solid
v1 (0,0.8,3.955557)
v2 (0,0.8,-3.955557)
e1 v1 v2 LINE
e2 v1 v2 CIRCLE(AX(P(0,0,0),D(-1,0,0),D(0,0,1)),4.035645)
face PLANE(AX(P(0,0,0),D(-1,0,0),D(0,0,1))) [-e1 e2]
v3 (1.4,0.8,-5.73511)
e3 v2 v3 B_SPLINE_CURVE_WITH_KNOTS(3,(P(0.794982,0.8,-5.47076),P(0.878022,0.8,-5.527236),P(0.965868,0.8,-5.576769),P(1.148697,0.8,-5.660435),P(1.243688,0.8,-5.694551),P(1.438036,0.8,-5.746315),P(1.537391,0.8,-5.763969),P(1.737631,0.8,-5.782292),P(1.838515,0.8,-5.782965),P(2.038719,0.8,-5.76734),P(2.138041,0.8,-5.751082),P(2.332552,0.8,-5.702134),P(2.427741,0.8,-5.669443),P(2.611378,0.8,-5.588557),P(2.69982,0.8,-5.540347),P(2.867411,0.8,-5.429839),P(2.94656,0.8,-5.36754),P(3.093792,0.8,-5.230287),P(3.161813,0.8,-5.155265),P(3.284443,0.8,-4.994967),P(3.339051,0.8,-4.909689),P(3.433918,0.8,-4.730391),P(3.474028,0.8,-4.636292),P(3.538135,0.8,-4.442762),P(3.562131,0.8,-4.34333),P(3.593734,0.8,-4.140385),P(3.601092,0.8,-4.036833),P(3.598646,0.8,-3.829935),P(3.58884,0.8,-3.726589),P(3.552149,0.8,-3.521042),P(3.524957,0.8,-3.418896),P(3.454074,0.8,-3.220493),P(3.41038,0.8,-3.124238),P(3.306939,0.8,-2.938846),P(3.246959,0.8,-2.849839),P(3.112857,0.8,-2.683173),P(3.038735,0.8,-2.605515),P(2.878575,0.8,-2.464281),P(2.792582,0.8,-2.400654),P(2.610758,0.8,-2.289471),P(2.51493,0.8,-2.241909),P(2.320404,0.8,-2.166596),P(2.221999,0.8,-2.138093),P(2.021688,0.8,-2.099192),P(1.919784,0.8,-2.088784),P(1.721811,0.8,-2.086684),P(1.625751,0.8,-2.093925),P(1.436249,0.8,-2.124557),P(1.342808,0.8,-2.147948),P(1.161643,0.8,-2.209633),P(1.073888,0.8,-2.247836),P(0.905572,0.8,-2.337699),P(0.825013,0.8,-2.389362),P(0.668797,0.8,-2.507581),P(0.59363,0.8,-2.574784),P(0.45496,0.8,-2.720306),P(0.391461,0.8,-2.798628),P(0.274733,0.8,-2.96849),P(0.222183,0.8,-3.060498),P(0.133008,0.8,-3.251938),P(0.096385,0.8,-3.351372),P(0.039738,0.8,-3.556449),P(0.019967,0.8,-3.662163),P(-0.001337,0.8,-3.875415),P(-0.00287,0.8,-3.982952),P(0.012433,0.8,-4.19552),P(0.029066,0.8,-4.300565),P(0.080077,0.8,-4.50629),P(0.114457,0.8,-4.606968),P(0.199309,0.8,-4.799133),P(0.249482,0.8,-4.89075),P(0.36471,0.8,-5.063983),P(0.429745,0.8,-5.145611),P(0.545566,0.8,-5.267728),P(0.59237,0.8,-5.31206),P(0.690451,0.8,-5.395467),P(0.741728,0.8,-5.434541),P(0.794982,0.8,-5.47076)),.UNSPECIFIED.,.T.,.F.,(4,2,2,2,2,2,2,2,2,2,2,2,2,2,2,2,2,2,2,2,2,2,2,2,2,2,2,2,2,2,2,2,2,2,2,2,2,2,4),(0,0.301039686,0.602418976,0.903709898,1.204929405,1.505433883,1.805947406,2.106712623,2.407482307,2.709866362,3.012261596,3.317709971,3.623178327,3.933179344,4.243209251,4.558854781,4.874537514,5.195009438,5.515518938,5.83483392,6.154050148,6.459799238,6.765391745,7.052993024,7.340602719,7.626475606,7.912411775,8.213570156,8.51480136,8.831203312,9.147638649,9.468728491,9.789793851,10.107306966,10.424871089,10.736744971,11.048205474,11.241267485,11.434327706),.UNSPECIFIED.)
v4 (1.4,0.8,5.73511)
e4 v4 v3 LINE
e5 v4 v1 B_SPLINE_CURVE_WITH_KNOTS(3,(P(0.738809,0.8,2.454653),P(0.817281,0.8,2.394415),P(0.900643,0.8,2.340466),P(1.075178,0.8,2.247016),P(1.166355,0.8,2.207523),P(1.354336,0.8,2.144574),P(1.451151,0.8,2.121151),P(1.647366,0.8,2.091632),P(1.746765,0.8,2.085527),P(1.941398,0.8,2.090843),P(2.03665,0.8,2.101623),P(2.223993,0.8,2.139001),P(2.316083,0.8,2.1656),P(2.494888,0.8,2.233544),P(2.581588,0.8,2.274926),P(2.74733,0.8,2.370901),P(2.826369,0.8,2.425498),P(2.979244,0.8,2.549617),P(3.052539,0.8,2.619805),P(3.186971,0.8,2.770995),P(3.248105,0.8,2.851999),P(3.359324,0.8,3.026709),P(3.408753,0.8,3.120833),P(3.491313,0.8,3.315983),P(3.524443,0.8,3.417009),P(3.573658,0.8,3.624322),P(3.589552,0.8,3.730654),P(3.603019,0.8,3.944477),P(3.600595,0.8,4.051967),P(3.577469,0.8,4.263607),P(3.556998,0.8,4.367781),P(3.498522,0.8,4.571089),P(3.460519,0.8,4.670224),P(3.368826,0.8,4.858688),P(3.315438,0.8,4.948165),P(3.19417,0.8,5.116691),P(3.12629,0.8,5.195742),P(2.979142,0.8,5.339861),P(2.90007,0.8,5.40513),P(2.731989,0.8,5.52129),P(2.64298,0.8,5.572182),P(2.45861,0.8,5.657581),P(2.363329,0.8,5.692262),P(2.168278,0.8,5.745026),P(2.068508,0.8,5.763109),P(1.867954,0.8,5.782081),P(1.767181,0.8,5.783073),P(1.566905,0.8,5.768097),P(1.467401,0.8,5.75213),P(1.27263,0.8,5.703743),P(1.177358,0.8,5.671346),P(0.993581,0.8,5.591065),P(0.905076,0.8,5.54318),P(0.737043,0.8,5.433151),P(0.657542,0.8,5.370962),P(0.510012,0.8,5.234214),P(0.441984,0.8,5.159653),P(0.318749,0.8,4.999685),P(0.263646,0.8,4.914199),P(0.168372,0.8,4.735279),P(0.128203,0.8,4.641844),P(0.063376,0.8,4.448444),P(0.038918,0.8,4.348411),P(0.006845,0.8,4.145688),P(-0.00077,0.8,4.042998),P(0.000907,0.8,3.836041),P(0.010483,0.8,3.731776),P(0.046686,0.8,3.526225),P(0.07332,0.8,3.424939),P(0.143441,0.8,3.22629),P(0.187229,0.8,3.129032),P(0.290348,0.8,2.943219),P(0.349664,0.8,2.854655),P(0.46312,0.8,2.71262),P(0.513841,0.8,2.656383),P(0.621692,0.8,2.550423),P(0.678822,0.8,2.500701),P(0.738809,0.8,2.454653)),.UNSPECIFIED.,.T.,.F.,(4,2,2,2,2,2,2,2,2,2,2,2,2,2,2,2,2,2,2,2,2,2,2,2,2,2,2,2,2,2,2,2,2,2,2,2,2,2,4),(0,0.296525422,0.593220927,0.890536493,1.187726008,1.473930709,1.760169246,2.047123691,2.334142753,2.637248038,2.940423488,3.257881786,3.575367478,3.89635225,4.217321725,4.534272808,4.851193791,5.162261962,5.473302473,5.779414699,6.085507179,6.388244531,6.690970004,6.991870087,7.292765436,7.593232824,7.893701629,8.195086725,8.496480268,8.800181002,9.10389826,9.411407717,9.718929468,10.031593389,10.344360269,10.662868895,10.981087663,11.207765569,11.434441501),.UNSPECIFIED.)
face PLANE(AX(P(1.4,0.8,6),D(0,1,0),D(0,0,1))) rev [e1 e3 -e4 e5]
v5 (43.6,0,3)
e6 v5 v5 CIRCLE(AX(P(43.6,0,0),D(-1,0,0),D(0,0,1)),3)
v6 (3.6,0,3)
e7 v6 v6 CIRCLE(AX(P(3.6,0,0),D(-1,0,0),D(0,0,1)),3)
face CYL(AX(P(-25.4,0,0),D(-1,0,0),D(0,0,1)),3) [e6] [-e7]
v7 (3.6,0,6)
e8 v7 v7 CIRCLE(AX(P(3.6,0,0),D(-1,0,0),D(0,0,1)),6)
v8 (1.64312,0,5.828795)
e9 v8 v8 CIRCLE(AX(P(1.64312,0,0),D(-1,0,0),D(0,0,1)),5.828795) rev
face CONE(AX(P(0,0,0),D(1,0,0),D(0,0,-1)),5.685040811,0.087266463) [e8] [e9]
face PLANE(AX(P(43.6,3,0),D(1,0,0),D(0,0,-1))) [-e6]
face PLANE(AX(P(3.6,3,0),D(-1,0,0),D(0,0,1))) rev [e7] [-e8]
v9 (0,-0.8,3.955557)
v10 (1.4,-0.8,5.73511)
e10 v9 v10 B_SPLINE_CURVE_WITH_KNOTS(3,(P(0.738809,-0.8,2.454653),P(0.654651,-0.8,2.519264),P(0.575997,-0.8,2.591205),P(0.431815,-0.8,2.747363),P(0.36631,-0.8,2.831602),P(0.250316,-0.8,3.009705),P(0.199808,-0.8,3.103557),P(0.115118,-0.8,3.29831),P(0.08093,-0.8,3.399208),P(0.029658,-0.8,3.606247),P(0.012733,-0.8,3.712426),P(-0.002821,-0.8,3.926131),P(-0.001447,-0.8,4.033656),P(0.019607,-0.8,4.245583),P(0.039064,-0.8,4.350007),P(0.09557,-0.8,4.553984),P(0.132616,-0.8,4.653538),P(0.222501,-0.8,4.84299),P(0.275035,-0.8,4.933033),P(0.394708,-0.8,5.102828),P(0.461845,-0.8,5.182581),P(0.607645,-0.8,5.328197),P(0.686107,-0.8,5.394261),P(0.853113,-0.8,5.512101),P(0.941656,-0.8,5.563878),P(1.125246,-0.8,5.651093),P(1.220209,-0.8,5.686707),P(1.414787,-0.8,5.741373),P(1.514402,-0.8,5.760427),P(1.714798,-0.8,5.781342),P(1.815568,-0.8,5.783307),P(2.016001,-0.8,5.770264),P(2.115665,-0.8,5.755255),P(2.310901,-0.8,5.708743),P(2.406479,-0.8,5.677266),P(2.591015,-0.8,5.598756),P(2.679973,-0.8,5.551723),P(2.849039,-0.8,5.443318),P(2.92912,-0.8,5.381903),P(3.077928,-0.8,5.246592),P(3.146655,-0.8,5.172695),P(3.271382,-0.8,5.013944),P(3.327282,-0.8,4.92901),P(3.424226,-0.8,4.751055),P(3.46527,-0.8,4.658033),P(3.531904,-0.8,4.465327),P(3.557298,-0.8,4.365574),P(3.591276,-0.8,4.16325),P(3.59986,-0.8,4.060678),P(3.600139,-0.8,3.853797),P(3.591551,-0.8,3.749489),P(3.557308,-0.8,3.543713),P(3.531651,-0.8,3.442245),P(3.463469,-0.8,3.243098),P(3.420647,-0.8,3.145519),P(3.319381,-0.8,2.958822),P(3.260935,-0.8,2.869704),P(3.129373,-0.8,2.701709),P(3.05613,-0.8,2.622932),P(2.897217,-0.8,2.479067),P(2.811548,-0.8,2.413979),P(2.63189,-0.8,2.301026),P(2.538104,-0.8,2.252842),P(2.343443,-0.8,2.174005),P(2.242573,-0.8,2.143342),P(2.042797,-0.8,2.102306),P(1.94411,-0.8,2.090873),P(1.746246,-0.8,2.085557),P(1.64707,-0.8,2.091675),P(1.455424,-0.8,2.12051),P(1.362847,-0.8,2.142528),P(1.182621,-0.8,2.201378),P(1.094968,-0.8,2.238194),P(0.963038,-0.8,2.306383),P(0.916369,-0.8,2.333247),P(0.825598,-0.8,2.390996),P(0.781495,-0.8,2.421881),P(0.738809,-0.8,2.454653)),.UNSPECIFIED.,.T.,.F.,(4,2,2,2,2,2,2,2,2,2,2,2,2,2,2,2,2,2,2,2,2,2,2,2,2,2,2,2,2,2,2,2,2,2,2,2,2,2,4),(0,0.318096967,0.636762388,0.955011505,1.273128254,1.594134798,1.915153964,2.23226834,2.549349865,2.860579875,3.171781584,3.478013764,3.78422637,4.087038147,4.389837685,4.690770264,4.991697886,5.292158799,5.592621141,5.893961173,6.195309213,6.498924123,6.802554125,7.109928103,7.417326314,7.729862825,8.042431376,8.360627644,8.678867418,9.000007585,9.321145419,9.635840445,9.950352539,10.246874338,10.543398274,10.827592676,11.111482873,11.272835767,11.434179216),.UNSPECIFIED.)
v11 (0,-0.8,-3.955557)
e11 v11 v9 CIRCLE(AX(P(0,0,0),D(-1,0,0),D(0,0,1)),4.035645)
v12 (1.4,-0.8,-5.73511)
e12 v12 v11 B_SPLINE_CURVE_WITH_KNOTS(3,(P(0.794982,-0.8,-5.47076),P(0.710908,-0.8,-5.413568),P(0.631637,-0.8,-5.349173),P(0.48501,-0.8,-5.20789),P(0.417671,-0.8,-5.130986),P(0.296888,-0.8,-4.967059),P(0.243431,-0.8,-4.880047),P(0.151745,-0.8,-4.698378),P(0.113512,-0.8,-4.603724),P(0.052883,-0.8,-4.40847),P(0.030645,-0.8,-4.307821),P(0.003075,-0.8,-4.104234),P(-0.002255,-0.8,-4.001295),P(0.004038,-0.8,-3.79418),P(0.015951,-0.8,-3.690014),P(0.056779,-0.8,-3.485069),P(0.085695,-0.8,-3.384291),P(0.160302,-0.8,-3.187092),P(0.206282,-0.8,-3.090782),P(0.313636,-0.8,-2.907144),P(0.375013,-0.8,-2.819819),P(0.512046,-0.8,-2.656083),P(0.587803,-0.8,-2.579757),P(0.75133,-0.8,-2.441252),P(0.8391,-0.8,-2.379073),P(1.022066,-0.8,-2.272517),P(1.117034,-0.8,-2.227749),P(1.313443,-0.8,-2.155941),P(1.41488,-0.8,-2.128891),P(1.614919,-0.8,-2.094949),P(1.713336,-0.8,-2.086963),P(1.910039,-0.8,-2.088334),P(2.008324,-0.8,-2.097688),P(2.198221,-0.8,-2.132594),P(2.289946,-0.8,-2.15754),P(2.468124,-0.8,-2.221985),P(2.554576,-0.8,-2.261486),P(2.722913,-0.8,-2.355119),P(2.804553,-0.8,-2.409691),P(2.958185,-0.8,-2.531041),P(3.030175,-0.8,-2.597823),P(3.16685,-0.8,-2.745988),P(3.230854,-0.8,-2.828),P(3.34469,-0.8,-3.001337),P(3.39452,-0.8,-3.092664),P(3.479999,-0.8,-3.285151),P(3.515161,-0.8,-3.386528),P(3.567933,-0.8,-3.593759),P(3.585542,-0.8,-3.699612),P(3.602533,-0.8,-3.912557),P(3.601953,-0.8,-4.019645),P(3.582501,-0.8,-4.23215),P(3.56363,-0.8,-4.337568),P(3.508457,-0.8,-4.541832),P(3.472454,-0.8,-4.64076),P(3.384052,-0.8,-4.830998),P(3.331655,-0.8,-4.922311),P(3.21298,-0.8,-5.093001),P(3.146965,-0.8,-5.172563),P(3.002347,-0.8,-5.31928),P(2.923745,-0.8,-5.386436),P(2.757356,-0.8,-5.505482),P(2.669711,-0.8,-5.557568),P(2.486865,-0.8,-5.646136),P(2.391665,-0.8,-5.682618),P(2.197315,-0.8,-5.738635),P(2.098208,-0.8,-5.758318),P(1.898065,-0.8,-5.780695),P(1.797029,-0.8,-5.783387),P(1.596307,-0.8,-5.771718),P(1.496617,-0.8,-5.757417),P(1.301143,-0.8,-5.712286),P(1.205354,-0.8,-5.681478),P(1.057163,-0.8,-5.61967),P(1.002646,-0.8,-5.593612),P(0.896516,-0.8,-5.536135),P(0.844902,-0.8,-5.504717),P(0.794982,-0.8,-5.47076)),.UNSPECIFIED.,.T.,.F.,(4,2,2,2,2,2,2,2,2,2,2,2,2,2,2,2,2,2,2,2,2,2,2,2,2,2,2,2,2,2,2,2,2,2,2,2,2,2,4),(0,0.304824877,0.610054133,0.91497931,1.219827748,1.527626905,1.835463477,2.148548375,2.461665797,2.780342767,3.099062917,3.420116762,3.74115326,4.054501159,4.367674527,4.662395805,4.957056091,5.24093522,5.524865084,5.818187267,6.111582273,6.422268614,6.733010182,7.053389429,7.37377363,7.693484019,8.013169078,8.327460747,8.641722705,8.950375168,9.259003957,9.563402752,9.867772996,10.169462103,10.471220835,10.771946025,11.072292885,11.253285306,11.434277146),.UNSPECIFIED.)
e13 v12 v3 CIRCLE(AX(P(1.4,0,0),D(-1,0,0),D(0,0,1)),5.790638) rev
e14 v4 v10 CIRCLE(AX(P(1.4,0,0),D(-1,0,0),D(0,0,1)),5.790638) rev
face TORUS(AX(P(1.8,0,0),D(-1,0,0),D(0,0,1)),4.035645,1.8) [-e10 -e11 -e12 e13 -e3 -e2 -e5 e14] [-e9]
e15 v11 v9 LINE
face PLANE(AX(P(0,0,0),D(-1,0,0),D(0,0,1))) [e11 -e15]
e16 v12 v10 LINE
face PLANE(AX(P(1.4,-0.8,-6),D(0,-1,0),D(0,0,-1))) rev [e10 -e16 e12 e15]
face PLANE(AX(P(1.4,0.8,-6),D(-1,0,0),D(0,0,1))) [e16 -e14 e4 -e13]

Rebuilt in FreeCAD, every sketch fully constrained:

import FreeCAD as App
import Part
import Sketcher
from FreeCAD import Vector
Q = App.Units.Quantity


def edges_at(feature, points):
    """Names of the edges that pass closest to the given points."""
    edges = feature.Shape.Edges
    near = lambda p: min(range(len(edges)), key=lambda i: edges[i].distToShape(Part.Vertex(*p))[0])
    return sorted({f"Edge{near(p) + 1}" for p in points})


def add_polygon(sketch, points):
    """Adds a closed chain of lines whose ends are joined by coincident constraints."""
    first, n = sketch.GeometryCount, len(points)
    for a, b in zip(points, points[1:] + points[:1]):
        sketch.addGeometry(Part.LineSegment(App.Vector(*a, 0), App.Vector(*b, 0)), False)
    for i in range(n):
        sketch.addConstraint(Sketcher.Constraint("Coincident", first + i, 2, first + (i + 1) % n, 1))

doc = App.newDocument("Part")
body = doc.addObject("PartDesign::Body", "Body")

sketch1 = body.newObject("Sketcher::SketchObject", "Sketch")
sketch1.AttachmentSupport = (doc.getObject("XY_Plane"), [""])
sketch1.MapMode = "FlatFace"
add_polygon(sketch1, [(3.6, 3), (3.6, 6), (0, 5.7), (0, 0), (43.6, 0), (43.6, 3)])
sketch1.addConstraint(Sketcher.Constraint("Vertical", 0))
sketch1.addConstraint(Sketcher.Constraint("Vertical", 2))
sketch1.addConstraint(Sketcher.Constraint("Horizontal", 3))
sketch1.addConstraint(Sketcher.Constraint("Vertical", 4))
sketch1.addConstraint(Sketcher.Constraint("Horizontal", 5))
sketch1.addConstraint(Sketcher.Constraint("Coincident", 2, 2, -1, 1))
sketch1.addConstraint(Sketcher.Constraint("Equal", 0, 4))
sketch1.addConstraint(Sketcher.Constraint("DistanceX", 5, 2, 5, 1, Q("40 mm")))
sketch1.addConstraint(Sketcher.Constraint("DistanceY", 0, 1, 0, 2, Q("3 mm")))
sketch1.addConstraint(Sketcher.Constraint("Angle", 1, Q("-175 deg")))
sketch1.addConstraint(Sketcher.Constraint("DistanceX", 3, 1, 3, 2, Q("43.6 mm")))
revolution = body.newObject("PartDesign::Revolution", "Revolution")
revolution.Profile = sketch1
revolution.ReferenceAxis = (sketch1, ["H_Axis"])
revolution.Angle = 360
doc.recompute()

fillet = body.newObject("PartDesign::Fillet", "Fillet")
fillet.Base = (revolution, edges_at(revolution, [(0, -5.685, 0)]))
fillet.Radius = 1.8

sketch2 = body.newObject("Sketcher::SketchObject", "Sketch001")
sketch2.AttachmentSupport = (doc.getObject("YZ_Plane"), [""])
sketch2.MapMode = "FlatFace"
add_polygon(sketch2, [(0.8, 6), (-0.8, 6), (-0.8, -6), (0.8, -6)])
sketch2.addConstraint(Sketcher.Constraint("Horizontal", 0))
sketch2.addConstraint(Sketcher.Constraint("Vertical", 1))
sketch2.addConstraint(Sketcher.Constraint("Horizontal", 2))
sketch2.addConstraint(Sketcher.Constraint("Vertical", 3))
sketch2.addConstraint(Sketcher.Constraint("Symmetric", 0, 2, 2, 2, -1, 1))
sketch2.addConstraint(Sketcher.Constraint("DistanceY", 1, 2, 1, 1, Q("12 mm")))
sketch2.addConstraint(Sketcher.Constraint("DistanceX", 0, 2, 0, 1, Q("1.6 mm")))
pocket1 = body.newObject("PartDesign::Pocket", "Pocket")
pocket1.Profile = sketch2
pocket1.Length = 1.4
pocket1.Reversed = True

doc.recompute()
